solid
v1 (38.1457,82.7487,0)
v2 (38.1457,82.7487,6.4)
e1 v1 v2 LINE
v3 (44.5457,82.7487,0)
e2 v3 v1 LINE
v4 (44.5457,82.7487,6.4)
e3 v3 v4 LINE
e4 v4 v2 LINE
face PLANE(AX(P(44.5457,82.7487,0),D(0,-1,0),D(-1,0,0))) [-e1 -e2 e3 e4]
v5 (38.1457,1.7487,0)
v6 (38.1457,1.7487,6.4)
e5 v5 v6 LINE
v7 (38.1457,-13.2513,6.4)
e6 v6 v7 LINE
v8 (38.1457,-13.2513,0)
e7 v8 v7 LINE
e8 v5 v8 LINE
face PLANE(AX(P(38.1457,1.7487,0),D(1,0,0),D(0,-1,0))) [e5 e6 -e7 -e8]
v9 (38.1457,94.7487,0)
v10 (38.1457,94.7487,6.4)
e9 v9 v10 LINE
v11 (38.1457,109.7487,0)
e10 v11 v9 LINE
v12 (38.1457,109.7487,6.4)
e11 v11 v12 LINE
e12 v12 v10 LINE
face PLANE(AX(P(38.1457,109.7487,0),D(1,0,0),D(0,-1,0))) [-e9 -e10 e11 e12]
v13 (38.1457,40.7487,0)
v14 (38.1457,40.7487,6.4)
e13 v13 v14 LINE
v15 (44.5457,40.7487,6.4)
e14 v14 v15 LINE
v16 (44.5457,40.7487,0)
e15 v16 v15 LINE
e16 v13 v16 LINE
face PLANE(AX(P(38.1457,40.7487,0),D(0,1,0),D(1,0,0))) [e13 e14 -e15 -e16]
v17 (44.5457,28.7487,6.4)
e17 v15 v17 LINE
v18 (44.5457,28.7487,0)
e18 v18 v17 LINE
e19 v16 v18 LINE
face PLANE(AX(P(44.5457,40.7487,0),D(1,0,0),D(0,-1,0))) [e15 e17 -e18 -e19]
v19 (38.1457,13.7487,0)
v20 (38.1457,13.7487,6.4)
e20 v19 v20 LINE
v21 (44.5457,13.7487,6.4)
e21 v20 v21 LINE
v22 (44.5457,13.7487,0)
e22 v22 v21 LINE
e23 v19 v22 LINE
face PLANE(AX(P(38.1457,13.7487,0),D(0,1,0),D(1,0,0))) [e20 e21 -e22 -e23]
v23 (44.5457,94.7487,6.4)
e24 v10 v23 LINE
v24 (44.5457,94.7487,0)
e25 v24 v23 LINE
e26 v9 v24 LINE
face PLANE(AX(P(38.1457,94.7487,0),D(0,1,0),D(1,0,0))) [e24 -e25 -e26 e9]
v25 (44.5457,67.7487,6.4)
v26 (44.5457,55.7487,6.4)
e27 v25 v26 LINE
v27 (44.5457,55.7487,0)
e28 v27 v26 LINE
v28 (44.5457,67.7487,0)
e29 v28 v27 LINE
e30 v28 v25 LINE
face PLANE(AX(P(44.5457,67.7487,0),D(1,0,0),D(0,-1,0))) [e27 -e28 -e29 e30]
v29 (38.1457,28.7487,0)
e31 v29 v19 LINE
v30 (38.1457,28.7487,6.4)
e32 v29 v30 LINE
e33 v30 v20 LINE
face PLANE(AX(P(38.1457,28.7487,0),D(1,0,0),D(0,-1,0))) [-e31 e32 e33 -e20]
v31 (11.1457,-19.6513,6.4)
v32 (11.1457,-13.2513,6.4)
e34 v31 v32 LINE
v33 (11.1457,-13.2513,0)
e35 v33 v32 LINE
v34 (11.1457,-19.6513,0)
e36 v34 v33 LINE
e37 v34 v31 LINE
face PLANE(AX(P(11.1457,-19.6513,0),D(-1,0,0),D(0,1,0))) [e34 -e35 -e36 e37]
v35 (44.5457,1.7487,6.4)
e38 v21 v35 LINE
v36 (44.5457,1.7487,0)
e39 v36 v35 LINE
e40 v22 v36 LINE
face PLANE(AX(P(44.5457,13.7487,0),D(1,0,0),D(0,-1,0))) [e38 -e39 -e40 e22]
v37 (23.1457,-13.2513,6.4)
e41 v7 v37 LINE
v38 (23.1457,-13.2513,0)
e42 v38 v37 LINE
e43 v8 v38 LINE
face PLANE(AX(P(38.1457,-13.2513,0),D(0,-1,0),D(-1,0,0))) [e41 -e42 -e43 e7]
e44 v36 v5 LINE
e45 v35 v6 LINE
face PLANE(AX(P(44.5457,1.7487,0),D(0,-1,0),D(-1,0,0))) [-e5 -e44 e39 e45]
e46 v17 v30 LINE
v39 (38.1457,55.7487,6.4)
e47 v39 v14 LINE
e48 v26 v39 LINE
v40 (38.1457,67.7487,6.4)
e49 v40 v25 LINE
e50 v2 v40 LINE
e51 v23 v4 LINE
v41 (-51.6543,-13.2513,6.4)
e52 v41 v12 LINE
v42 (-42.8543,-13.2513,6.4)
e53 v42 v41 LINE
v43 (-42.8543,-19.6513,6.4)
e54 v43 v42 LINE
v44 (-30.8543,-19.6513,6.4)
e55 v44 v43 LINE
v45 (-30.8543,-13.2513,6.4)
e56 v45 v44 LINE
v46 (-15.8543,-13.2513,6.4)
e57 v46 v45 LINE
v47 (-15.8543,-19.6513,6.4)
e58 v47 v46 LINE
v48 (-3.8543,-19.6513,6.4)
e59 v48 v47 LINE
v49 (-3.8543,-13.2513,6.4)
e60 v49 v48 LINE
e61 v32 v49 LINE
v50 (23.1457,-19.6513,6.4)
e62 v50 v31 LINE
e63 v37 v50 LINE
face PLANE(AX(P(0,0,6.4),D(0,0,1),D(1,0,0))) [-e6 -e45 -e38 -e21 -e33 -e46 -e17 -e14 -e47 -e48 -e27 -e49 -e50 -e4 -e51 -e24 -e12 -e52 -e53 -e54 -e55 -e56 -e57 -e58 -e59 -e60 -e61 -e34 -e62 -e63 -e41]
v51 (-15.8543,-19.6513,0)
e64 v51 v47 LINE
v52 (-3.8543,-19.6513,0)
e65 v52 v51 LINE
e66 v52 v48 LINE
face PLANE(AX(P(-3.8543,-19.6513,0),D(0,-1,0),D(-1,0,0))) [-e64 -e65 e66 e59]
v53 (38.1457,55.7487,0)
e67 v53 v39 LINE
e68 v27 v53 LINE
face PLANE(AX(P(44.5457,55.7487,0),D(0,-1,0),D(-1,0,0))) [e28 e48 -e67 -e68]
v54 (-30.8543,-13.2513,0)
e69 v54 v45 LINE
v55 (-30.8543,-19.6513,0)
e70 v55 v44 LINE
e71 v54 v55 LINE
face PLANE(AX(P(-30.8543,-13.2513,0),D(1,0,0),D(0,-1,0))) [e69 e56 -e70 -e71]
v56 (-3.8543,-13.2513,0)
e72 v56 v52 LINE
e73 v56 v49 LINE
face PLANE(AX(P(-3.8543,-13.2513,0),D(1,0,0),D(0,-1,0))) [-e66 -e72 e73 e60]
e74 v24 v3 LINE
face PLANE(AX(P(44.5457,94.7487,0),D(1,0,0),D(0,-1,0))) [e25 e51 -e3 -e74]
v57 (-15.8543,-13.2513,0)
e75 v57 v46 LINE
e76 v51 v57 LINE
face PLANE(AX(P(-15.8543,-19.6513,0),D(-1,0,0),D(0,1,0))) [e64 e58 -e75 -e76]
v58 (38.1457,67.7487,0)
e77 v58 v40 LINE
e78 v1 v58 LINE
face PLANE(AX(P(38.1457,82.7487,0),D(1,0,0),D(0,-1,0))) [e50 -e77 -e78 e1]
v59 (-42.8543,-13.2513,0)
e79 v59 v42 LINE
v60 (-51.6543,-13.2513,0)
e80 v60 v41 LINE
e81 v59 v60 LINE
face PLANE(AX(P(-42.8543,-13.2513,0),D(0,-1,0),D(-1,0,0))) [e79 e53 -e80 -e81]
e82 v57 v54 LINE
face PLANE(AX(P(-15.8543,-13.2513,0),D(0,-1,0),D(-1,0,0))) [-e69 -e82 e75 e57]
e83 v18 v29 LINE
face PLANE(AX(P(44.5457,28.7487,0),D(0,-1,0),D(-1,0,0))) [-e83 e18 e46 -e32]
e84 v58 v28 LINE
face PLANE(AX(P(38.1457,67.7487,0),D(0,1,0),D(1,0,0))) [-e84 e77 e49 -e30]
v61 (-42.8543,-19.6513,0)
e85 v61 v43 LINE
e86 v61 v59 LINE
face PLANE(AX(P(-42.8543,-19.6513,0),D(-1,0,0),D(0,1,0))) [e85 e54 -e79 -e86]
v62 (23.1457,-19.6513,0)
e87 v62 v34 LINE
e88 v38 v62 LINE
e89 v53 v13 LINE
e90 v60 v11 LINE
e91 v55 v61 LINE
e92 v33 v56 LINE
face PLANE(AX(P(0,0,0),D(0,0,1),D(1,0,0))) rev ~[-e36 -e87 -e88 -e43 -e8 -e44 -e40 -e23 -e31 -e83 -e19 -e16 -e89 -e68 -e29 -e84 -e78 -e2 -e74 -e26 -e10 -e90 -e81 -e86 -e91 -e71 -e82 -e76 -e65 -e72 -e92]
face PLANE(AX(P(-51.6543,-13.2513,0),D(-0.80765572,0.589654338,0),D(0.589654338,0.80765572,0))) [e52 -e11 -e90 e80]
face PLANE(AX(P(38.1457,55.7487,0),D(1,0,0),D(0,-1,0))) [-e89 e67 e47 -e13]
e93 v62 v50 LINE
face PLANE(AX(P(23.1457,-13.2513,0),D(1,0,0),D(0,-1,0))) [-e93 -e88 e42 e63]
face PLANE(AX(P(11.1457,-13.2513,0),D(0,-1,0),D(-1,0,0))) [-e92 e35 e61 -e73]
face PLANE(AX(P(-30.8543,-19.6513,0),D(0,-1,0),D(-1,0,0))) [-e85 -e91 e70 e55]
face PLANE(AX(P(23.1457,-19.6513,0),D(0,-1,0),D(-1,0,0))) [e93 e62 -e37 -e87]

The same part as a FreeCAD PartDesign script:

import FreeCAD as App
import Part
import Sketcher
from FreeCAD import Vector

doc = App.newDocument("Part")
params = doc.addObject("Spreadsheet::Sheet", "Params")
for row, (alias, value) in enumerate([
    ("sketch1_width", "12 mm"),
    ("sketch1_width2", "15 mm"),
    ("sketch1_width3", "6.4 mm"),
    ("pad1_length", "6.4 mm"),
], start=1):
    params.set(f"A{row}", alias)
    params.set(f"B{row}", "=" + value)
    params.setAlias(f"B{row}", alias)

body = doc.addObject("PartDesign::Body", "Body")

sketch1 = body.newObject("Sketcher::SketchObject", "Sketch")
sketch1.AttachmentSupport = (doc.getObject("XY_Plane"), [""])
sketch1.MapMode = "FlatFace"
sketch1.addGeometry([
    Part.LineSegment(Vector(44.5457, 94.7487, 0), Vector(38.1457, 94.7487, 0)),
    Part.LineSegment(Vector(38.1457, 94.7487, 0), Vector(38.1457, 109.7487, 0)),
    Part.LineSegment(Vector(38.1457, 109.7487, 0), Vector(-51.6543, -13.2513, 0)),
    Part.LineSegment(Vector(-51.6543, -13.2513, 0), Vector(-42.8543, -13.2513, 0)),
    Part.LineSegment(Vector(-42.8543, -13.2513, 0), Vector(-42.8543, -19.6513, 0)),
    Part.LineSegment(Vector(-42.8543, -19.6513, 0), Vector(-30.8543, -19.6513, 0)),
    Part.LineSegment(Vector(-30.8543, -19.6513, 0), Vector(-30.8543, -13.2513, 0)),
    Part.LineSegment(Vector(-30.8543, -13.2513, 0), Vector(-15.8543, -13.2513, 0)),
    Part.LineSegment(Vector(-15.8543, -13.2513, 0), Vector(-15.8543, -19.6513, 0)),
    Part.LineSegment(Vector(-15.8543, -19.6513, 0), Vector(-3.8543, -19.6513, 0)),
    Part.LineSegment(Vector(-3.8543, -19.6513, 0), Vector(-3.8543, -13.2513, 0)),
    Part.LineSegment(Vector(-3.8543, -13.2513, 0), Vector(11.1457, -13.2513, 0)),
    Part.LineSegment(Vector(11.1457, -13.2513, 0), Vector(11.1457, -19.6513, 0)),
    Part.LineSegment(Vector(11.1457, -19.6513, 0), Vector(23.1457, -19.6513, 0)),
    Part.LineSegment(Vector(23.1457, -19.6513, 0), Vector(23.1457, -13.2513, 0)),
    Part.LineSegment(Vector(23.1457, -13.2513, 0), Vector(38.1457, -13.2513, 0)),
    Part.LineSegment(Vector(38.1457, -13.2513, 0), Vector(38.1457, 1.7487, 0)),
    Part.LineSegment(Vector(38.1457, 1.7487, 0), Vector(44.5457, 1.7487, 0)),
    Part.LineSegment(Vector(44.5457, 1.7487, 0), Vector(44.5457, 13.7487, 0)),
    Part.LineSegment(Vector(44.5457, 13.7487, 0), Vector(38.1457, 13.7487, 0)),
    Part.LineSegment(Vector(38.1457, 13.7487, 0), Vector(38.1457, 28.7487, 0)),
    Part.LineSegment(Vector(38.1457, 28.7487, 0), Vector(44.5457, 28.7487, 0)),
    Part.LineSegment(Vector(44.5457, 28.7487, 0), Vector(44.5457, 40.7487, 0)),
    Part.LineSegment(Vector(44.5457, 40.7487, 0), Vector(38.1457, 40.7487, 0)),
    Part.LineSegment(Vector(38.1457, 40.7487, 0), Vector(38.1457, 55.7487, 0)),
    Part.LineSegment(Vector(38.1457, 55.7487, 0), Vector(44.5457, 55.7487, 0)),
    Part.LineSegment(Vector(44.5457, 55.7487, 0), Vector(44.5457, 67.7487, 0)),
    Part.LineSegment(Vector(44.5457, 67.7487, 0), Vector(38.1457, 67.7487, 0)),
    Part.LineSegment(Vector(38.1457, 67.7487, 0), Vector(38.1457, 82.7487, 0)),
    Part.LineSegment(Vector(38.1457, 82.7487, 0), Vector(44.5457, 82.7487, 0)),
    Part.LineSegment(Vector(44.5457, 82.7487, 0), Vector(44.5457, 94.7487, 0)),
], False)
sketch1.addConstraint([
    Sketcher.Constraint("Coincident", 0, 2, 1, 1),
    Sketcher.Constraint("Coincident", 1, 2, 2, 1),
    Sketcher.Constraint("Coincident", 2, 2, 3, 1),
    Sketcher.Constraint("Coincident", 3, 2, 4, 1),
    Sketcher.Constraint("Coincident", 4, 2, 5, 1),
    Sketcher.Constraint("Coincident", 5, 2, 6, 1),
    Sketcher.Constraint("Coincident", 6, 2, 7, 1),
    Sketcher.Constraint("Coincident", 7, 2, 8, 1),
    Sketcher.Constraint("Coincident", 8, 2, 9, 1),
    Sketcher.Constraint("Coincident", 9, 2, 10, 1),
    Sketcher.Constraint("Coincident", 10, 2, 11, 1),
    Sketcher.Constraint("Coincident", 11, 2, 12, 1),
    Sketcher.Constraint("Coincident", 12, 2, 13, 1),
    Sketcher.Constraint("Coincident", 13, 2, 14, 1),
    Sketcher.Constraint("Coincident", 14, 2, 15, 1),
    Sketcher.Constraint("Coincident", 15, 2, 16, 1),
    Sketcher.Constraint("Coincident", 16, 2, 17, 1),
    Sketcher.Constraint("Coincident", 17, 2, 18, 1),
    Sketcher.Constraint("Coincident", 18, 2, 19, 1),
    Sketcher.Constraint("Coincident", 19, 2, 20, 1),
    Sketcher.Constraint("Coincident", 20, 2, 21, 1),
    Sketcher.Constraint("Coincident", 21, 2, 22, 1),
    Sketcher.Constraint("Coincident", 22, 2, 23, 1),
    Sketcher.Constraint("Coincident", 23, 2, 24, 1),
    Sketcher.Constraint("Coincident", 24, 2, 25, 1),
    Sketcher.Constraint("Coincident", 25, 2, 26, 1),
    Sketcher.Constraint("Coincident", 26, 2, 27, 1),
    Sketcher.Constraint("Coincident", 27, 2, 28, 1),
    Sketcher.Constraint("Coincident", 28, 2, 29, 1),
    Sketcher.Constraint("Coincident", 29, 2, 30, 1),
    Sketcher.Constraint("Coincident", 30, 2, 0, 1),
    Sketcher.Constraint("Horizontal", 0),
    Sketcher.Constraint("Vertical", 1),
    Sketcher.Constraint("Horizontal", 3),
    Sketcher.Constraint("Vertical", 4),
    Sketcher.Constraint("Horizontal", 5),
    Sketcher.Constraint("Vertical", 6),
    Sketcher.Constraint("Horizontal", 7),
    Sketcher.Constraint("Vertical", 8),
    Sketcher.Constraint("Horizontal", 9),
    Sketcher.Constraint("Vertical", 10),
    Sketcher.Constraint("Horizontal", 11),
    Sketcher.Constraint("Vertical", 12),
    Sketcher.Constraint("Horizontal", 13),
    Sketcher.Constraint("Vertical", 14),
    Sketcher.Constraint("Horizontal", 15),
    Sketcher.Constraint("Vertical", 16),
    Sketcher.Constraint("Horizontal", 17),
    Sketcher.Constraint("Vertical", 18),
    Sketcher.Constraint("Horizontal", 19),
    Sketcher.Constraint("Vertical", 20),
    Sketcher.Constraint("Horizontal", 21),
    Sketcher.Constraint("Vertical", 22),
    Sketcher.Constraint("Horizontal", 23),
    Sketcher.Constraint("Vertical", 24),
    Sketcher.Constraint("Horizontal", 25),
    Sketcher.Constraint("Vertical", 26),
    Sketcher.Constraint("Horizontal", 27),
    Sketcher.Constraint("Vertical", 28),
    Sketcher.Constraint("Horizontal", 29),
    Sketcher.Constraint("Vertical", 30),
    Sketcher.Constraint("Horizontal", 3, 2, 6, 2),
    Sketcher.Constraint("Horizontal", 5, 2, 8, 2),
    Sketcher.Constraint("Horizontal", 7, 2, 10, 2),
    Sketcher.Constraint("Horizontal", 9, 2, 12, 2),
    Sketcher.Constraint("Horizontal", 11, 2, 14, 2),
    Sketcher.Constraint("Vertical", 1, 2, 15, 2),
    Sketcher.Constraint("Vertical", 16, 2, 19, 2),
    Sketcher.Constraint("Vertical", 18, 2, 21, 2),
    Sketcher.Constraint("Vertical", 20, 2, 23, 2),
    Sketcher.Constraint("Vertical", 22, 2, 25, 2),
    Sketcher.Constraint("Vertical", 24, 2, 27, 2),
    Sketcher.Constraint("Vertical", 26, 2, 29, 2),
    Sketcher.Constraint("Equal", 5, 9),
    Sketcher.Constraint("Equal", 7, 11),
    Sketcher.Constraint("Equal", 9, 13),
    Sketcher.Constraint("Equal", 11, 15),
    Sketcher.Constraint("Equal", 15, 1),
    Sketcher.Constraint("Equal", 29, 4),
    Sketcher.Constraint("Equal", 1, 16),
    Sketcher.Constraint("Equal", 13, 18),
    Sketcher.Constraint("Equal", 16, 20),
    Sketcher.Constraint("Equal", 18, 22),
    Sketcher.Constraint("Equal", 20, 24),
    Sketcher.Constraint("Equal", 22, 26),
    Sketcher.Constraint("Equal", 24, 28),
    Sketcher.Constraint("Equal", 26, 30),
    Sketcher.Constraint("DistanceX", 5, 1, 5, 2, 12.0),
    Sketcher.Constraint("DistanceX", 7, 1, 7, 2, 15.0),
    Sketcher.Constraint("DistanceX", 0, 2, 0, 1, 6.4),
    Sketcher.Constraint("DistanceX", 2, 2, 0, 2, 89.8),
    Sketcher.Constraint("DistanceX", -1, 1, 0, 2, 38.1457),
    Sketcher.Constraint("DistanceY", -1, 1, 0, 2, 94.7487),
])
sketch1.setExpression("Constraints[87]", "Params.sketch1_width")
sketch1.setExpression("Constraints[88]", "Params.sketch1_width2")
sketch1.setExpression("Constraints[89]", "Params.sketch1_width3")
pad1 = body.newObject("PartDesign::Pad", "Pad")
pad1.Profile = sketch1
pad1.setExpression("Length", "Params.pad1_length")

doc.recompute()
